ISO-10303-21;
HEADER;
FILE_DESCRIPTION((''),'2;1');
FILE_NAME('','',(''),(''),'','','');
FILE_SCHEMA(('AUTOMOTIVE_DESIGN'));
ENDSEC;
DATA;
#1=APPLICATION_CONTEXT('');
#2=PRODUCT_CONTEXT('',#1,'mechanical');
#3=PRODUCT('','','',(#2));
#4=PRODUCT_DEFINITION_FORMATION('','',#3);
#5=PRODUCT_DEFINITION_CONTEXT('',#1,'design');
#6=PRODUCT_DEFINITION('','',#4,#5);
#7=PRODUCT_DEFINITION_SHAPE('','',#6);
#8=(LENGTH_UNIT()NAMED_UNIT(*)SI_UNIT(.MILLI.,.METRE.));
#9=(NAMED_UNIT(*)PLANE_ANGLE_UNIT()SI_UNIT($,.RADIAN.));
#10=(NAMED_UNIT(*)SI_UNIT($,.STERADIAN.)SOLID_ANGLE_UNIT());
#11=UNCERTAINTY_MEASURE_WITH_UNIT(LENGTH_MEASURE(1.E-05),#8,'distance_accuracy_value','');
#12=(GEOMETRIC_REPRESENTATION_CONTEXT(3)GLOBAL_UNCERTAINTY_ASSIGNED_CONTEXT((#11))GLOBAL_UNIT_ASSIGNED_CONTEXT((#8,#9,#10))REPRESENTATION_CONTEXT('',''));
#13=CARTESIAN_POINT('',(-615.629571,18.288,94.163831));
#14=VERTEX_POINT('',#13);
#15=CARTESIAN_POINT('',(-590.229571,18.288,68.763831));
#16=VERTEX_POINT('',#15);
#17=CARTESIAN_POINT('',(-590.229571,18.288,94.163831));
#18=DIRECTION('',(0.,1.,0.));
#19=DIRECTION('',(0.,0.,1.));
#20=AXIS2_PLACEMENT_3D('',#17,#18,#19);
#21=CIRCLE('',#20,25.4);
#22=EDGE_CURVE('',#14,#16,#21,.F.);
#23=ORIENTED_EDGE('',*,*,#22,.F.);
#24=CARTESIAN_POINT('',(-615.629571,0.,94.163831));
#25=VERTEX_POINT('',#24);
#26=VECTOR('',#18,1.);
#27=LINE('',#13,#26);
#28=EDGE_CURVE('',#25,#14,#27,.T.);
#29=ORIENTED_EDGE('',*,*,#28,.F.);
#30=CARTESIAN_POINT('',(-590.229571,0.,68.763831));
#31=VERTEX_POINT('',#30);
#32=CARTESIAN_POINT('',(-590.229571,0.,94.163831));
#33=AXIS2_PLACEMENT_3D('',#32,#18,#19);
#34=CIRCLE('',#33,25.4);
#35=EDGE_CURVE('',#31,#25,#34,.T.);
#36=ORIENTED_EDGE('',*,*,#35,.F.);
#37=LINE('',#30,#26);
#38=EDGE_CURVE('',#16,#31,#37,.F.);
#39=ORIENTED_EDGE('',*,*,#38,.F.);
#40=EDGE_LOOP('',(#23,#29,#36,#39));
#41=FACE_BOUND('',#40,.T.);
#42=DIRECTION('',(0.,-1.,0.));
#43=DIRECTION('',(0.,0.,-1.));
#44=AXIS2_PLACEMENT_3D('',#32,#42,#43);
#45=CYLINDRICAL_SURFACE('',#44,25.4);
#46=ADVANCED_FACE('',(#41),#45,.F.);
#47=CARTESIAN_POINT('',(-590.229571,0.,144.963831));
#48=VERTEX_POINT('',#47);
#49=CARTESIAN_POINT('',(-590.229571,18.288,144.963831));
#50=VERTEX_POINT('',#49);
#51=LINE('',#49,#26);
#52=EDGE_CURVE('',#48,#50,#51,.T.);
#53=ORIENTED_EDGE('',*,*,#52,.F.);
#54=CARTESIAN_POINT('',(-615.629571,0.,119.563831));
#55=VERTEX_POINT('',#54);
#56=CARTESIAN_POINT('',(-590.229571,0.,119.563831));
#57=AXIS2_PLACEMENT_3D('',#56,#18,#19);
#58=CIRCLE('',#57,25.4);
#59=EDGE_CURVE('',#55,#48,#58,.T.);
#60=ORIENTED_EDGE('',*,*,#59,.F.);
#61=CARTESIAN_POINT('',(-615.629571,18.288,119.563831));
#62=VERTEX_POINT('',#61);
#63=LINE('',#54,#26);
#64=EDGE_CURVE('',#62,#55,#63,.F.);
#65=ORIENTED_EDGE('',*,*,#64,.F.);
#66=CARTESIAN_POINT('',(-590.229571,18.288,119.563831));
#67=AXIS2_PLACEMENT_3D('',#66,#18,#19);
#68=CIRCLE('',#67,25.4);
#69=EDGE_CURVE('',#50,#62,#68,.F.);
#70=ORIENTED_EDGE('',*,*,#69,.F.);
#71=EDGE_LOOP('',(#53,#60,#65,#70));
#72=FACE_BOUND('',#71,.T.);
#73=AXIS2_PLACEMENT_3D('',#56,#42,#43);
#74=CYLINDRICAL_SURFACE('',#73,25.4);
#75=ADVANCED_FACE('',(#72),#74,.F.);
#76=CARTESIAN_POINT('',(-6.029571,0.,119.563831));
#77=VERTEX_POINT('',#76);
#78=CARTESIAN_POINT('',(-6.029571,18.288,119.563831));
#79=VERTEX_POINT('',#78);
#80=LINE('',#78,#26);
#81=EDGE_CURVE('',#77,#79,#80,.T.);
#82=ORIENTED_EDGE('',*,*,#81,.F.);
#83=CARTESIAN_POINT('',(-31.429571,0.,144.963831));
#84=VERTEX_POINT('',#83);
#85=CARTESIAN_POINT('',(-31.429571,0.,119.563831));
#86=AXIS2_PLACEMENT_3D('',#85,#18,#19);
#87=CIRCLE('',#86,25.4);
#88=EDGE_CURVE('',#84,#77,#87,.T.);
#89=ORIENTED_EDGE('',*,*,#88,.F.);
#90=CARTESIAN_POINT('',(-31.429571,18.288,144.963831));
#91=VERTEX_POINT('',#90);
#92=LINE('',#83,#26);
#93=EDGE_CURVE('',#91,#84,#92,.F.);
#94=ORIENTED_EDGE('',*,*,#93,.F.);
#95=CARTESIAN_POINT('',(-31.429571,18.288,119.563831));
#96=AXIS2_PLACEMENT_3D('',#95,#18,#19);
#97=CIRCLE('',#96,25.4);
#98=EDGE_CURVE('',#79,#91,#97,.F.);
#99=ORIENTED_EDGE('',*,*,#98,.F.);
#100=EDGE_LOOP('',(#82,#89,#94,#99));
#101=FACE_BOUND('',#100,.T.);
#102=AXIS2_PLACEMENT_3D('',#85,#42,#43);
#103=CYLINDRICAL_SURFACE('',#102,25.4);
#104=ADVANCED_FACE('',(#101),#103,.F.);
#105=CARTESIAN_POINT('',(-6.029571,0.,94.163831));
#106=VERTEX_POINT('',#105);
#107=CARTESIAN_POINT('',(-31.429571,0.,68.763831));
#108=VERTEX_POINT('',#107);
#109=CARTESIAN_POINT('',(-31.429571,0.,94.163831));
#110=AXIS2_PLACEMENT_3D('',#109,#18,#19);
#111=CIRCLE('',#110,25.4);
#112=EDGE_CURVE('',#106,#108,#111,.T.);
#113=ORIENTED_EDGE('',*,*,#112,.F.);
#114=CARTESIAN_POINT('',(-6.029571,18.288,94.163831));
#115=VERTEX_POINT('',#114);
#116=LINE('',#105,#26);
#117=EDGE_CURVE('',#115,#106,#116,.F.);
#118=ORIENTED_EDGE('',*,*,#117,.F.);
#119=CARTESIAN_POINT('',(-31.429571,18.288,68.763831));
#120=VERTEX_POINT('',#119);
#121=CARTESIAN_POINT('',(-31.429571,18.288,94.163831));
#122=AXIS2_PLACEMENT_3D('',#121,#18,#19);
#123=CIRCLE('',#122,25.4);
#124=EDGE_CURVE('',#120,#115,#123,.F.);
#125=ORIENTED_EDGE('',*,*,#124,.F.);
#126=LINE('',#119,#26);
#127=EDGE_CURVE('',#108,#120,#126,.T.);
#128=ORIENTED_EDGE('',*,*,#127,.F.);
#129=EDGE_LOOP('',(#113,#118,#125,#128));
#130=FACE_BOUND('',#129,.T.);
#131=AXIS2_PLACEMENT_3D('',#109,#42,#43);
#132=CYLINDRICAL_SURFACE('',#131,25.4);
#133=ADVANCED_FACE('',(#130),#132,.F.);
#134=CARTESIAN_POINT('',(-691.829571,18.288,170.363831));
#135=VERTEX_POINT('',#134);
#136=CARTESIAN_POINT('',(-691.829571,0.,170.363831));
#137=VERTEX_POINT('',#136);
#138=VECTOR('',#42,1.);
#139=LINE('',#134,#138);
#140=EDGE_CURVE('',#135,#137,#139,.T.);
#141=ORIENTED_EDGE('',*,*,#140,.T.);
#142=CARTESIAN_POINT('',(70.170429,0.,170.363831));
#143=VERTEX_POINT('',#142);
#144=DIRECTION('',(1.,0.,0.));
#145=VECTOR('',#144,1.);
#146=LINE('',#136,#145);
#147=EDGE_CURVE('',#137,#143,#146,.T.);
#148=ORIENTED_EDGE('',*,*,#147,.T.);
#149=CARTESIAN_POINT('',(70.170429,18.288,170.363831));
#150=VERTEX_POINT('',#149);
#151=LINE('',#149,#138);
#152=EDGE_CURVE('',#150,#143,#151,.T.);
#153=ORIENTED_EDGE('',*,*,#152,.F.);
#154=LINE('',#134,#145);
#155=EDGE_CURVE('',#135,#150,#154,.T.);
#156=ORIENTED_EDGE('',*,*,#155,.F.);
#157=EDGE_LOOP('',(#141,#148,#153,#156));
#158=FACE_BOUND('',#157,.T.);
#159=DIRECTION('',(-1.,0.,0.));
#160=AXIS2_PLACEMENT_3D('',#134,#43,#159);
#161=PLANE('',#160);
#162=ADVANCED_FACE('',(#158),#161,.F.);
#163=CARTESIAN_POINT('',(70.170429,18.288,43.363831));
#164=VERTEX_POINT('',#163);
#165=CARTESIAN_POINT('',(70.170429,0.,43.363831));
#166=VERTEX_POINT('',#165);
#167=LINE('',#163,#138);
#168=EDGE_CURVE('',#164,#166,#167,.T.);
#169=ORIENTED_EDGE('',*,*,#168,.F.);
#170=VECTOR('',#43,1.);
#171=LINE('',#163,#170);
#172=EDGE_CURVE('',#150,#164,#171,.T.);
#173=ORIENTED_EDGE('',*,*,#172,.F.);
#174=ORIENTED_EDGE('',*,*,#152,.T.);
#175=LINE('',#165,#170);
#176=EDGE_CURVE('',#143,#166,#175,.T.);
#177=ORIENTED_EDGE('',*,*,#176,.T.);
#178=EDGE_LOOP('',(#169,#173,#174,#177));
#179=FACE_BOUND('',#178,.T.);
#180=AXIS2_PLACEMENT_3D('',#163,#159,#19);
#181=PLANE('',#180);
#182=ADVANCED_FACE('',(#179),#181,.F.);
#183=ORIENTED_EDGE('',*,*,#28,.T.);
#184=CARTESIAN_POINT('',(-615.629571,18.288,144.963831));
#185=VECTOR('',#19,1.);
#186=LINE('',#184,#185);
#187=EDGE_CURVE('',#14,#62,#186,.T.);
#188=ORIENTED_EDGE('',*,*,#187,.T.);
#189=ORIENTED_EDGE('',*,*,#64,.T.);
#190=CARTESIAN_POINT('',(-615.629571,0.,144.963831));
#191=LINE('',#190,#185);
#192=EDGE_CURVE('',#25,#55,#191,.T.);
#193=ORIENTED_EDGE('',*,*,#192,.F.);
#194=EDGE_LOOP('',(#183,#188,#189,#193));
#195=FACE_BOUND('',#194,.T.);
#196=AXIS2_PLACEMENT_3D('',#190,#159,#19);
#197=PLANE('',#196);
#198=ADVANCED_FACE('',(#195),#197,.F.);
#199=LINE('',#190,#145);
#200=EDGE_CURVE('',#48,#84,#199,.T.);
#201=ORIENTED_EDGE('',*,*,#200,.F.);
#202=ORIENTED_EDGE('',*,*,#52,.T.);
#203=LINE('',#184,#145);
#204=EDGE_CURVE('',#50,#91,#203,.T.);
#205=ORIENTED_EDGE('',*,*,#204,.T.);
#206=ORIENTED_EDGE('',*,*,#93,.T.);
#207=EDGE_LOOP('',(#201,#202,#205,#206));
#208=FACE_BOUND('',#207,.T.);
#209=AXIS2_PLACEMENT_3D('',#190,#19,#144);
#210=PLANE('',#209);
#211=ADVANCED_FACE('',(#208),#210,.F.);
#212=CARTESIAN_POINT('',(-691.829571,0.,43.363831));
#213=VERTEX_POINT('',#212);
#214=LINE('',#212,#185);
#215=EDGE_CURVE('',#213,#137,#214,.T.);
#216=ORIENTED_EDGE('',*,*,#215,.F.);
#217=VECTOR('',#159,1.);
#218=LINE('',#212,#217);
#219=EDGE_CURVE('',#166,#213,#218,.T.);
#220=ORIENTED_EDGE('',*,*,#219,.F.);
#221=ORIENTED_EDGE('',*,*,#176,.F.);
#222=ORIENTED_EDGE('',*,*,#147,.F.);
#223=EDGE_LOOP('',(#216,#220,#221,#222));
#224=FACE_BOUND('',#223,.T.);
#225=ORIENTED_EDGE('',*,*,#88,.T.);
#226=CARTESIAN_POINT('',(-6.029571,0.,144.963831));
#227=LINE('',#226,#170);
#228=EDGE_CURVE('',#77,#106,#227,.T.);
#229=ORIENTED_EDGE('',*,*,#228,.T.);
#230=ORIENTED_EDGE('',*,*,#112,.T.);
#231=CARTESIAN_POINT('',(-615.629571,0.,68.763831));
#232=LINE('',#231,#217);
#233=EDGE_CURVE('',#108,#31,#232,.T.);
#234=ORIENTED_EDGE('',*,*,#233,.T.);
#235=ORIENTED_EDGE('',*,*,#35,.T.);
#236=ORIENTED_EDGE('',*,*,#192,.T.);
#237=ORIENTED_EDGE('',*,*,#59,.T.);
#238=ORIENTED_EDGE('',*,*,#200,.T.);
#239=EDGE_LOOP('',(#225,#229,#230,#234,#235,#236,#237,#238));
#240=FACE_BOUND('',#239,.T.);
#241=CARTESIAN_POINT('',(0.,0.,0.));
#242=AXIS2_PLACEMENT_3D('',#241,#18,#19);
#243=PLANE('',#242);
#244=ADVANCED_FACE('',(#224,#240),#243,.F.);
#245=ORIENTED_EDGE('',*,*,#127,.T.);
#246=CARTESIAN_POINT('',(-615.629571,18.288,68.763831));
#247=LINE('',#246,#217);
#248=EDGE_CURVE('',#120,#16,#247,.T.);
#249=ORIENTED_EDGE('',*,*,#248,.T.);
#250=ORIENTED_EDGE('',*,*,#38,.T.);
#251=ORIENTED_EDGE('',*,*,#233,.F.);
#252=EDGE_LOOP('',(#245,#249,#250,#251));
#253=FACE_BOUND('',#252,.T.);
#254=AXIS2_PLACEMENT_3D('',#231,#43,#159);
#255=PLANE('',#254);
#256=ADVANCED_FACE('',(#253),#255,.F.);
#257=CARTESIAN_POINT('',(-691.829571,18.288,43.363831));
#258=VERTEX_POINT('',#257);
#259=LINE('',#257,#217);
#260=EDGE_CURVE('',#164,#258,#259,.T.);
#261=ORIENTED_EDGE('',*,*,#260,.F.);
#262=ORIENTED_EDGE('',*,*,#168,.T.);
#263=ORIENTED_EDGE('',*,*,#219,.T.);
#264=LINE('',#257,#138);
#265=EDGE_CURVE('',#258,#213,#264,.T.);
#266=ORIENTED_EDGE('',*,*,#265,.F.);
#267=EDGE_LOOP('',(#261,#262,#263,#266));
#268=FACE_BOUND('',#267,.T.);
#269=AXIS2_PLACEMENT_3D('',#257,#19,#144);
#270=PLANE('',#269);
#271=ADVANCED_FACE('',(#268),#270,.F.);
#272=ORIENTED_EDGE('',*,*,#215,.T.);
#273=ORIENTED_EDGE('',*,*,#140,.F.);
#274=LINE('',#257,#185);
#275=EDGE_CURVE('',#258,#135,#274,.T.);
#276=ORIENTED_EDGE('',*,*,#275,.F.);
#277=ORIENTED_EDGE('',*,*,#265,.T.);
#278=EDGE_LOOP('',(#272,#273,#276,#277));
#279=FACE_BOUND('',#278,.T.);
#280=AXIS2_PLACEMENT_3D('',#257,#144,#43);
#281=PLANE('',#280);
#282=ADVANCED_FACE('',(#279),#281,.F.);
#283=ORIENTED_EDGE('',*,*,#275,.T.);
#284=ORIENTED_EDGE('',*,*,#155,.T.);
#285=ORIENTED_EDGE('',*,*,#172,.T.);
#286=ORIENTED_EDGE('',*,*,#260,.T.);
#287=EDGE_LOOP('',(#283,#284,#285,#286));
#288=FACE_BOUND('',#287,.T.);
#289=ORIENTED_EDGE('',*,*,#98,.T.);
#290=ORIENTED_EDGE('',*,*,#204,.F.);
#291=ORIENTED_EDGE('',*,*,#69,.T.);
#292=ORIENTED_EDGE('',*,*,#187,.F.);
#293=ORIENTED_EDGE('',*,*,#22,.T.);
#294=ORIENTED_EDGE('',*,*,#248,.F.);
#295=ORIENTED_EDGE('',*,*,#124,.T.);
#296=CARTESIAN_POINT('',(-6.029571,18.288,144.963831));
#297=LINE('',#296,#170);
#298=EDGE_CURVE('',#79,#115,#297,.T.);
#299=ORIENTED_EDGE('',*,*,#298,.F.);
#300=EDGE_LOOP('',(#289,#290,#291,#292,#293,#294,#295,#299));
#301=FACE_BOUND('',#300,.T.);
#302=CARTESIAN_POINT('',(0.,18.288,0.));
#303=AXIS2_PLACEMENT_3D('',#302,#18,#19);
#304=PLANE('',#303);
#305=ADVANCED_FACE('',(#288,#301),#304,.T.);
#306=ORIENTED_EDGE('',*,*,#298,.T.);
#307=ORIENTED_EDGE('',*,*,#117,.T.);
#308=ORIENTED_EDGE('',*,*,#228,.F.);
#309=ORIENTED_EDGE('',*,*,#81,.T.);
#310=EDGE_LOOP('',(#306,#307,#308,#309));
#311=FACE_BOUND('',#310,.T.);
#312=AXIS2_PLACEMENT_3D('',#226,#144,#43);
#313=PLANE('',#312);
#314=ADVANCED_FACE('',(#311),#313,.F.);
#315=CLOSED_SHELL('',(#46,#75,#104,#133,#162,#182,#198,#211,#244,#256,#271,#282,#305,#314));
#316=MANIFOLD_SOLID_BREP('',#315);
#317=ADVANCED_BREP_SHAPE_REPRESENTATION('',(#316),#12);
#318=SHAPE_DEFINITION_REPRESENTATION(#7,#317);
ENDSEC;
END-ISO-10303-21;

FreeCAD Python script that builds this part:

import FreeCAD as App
import Part
import Sketcher
Q = App.Units.Quantity


def edges_at(feature, points):
    """Names of the edges that pass closest to the given points."""
    edges = feature.Shape.Edges
    near = lambda p: min(range(len(edges)), key=lambda i: edges[i].distToShape(Part.Vertex(*p))[0])
    return sorted({f"Edge{near(p) + 1}" for p in points})

doc = App.newDocument("Part")
body = doc.addObject("PartDesign::Body", "Body")

# Sketch on XZ plane
sketch1 = body.newObject("Sketcher::SketchObject", "Sketch")
sketch1.AttachmentSupport = (doc.getObject("XZ_Plane"), [""])
sketch1.MapMode = "FlatFace"
sketch1.addGeometry([
    Part.LineSegment(App.Vector(-692, 43, 0), App.Vector(-692, 170, 0)),
    Part.LineSegment(App.Vector(-692, 170, 0), App.Vector(70, 170, 0)),
    Part.LineSegment(App.Vector(70, 170, 0), App.Vector(70, 43, 0)),
    Part.LineSegment(App.Vector(70, 43, 0), App.Vector(-692, 43, 0)),
], False)
sketch1.addConstraint([
    Sketcher.Constraint("Coincident", 0, 2, 1, 1),
    Sketcher.Constraint("Coincident", 1, 2, 2, 1),
    Sketcher.Constraint("Coincident", 2, 2, 3, 1),
    Sketcher.Constraint("Coincident", 3, 2, 0, 1),
    Sketcher.Constraint("Vertical", 0),
    Sketcher.Constraint("Horizontal", 1),
    Sketcher.Constraint("Vertical", 2),
    Sketcher.Constraint("Horizontal", 3),
    Sketcher.Constraint("DistanceX", 1, 1, 1, 2, Q("30 in")),
    Sketcher.Constraint("DistanceY", 0, 1, 0, 2, Q("5 in")),
    Sketcher.Constraint("DistanceX", 0, 2, -1, 1, 691.829571),
    Sketcher.Constraint("DistanceY", -1, 1, 0, 2, 170.363831),
])
pad1 = body.newObject("PartDesign::Pad", "Pad")
pad1.Profile = sketch1
pad1.Length = Q("0.72 in")
pad1.Reversed = True

# Sketch on XZ plane
sketch2 = body.newObject("Sketcher::SketchObject", "Sketch001")
sketch2.AttachmentSupport = (doc.getObject("XZ_Plane"), [""])
sketch2.MapMode = "FlatFace"
sketch2.AttachmentOffset = App.Placement(App.Vector(0, 0, -0.72 * 25.4), App.Rotation())
sketch2.addGeometry([
    Part.LineSegment(App.Vector(-616, 69, 0), App.Vector(-616, 145, 0)),
    Part.LineSegment(App.Vector(-616, 145, 0), App.Vector(-6, 145, 0)),
    Part.LineSegment(App.Vector(-6, 145, 0), App.Vector(-6, 69, 0)),
    Part.LineSegment(App.Vector(-6, 69, 0), App.Vector(-616, 69, 0)),
], False)
sketch2.addConstraint([
    Sketcher.Constraint("Coincident", 0, 2, 1, 1),
    Sketcher.Constraint("Coincident", 1, 2, 2, 1),
    Sketcher.Constraint("Coincident", 2, 2, 3, 1),
    Sketcher.Constraint("Coincident", 3, 2, 0, 1),
    Sketcher.Constraint("Vertical", 0),
    Sketcher.Constraint("Horizontal", 1),
    Sketcher.Constraint("Vertical", 2),
    Sketcher.Constraint("Horizontal", 3),
    Sketcher.Constraint("DistanceX", 1, 1, 1, 2, Q("24 in")),
    Sketcher.Constraint("DistanceY", 0, 1, 0, 2, Q("3 in")),
    Sketcher.Constraint("DistanceX", 0, 2, -1, 1, 615.629571),
    Sketcher.Constraint("DistanceY", -1, 1, 0, 2, 144.963831),
])
pocket1 = body.newObject("PartDesign::Pocket", "Pocket")
pocket1.Profile = sketch2
pocket1.Type = "ThroughAll"
pocket1.Reversed = True
doc.recompute()

fillet = body.newObject("PartDesign::Fillet", "Fillet")
fillet.Base = (pocket1, edges_at(pocket1, [
    (-6.03, 9.144, 68.764),
    (-6.03, 9.144, 144.964),
    (-615.63, 9.144, 144.964),
    (-615.63, 9.144, 68.764),
]))
fillet.Radius = Q("1 in")

doc.recompute()
